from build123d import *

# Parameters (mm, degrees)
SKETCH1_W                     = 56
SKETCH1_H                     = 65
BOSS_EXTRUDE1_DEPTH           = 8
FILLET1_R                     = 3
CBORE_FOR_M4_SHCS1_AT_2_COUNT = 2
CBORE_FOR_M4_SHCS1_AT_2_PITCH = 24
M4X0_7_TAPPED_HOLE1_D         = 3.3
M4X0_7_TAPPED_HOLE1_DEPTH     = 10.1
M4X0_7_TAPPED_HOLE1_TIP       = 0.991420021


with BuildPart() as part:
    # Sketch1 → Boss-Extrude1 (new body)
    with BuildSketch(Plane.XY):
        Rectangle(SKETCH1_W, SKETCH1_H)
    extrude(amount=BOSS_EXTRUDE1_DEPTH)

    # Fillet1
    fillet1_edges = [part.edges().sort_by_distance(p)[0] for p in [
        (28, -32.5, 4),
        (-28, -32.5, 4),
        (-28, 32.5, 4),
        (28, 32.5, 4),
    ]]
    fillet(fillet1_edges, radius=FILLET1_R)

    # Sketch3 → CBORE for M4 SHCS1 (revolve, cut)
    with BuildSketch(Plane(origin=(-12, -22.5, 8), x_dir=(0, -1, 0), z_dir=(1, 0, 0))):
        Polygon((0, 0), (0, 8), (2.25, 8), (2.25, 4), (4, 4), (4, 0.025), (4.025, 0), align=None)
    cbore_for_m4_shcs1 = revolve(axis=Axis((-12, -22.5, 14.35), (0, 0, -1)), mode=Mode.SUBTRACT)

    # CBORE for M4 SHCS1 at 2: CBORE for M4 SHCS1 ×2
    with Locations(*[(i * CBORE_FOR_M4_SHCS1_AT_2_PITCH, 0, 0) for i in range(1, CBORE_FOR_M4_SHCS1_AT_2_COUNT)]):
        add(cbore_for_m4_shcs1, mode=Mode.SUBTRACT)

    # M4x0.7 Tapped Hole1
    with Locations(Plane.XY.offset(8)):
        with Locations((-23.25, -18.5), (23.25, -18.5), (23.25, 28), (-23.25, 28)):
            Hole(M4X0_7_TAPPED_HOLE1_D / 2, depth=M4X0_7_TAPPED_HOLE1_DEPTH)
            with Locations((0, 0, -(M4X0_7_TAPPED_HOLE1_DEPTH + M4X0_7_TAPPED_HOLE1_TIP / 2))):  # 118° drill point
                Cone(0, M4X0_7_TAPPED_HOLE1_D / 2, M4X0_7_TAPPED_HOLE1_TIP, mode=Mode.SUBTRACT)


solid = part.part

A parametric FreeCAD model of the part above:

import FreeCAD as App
import Part
import Sketcher

V = App.Vector
Q = App.Units.Quantity


def edges_at(feature, points):
    """Names of the edges that pass closest to the given points."""
    edges = feature.Shape.Edges
    near = lambda p: min(range(len(edges)), key=lambda i: edges[i].distToShape(Part.Vertex(*p))[0])
    return sorted({f"Edge{near(p) + 1}" for p in points})

doc = App.newDocument("Part")
params = doc.addObject("Spreadsheet::Sheet", "Params")
for row, (alias, value) in enumerate([
    ("sketch1_width", "56 mm"),
    ("sketch1_height", "65 mm"),
    ("pad1_length", "8 mm"),
    ("fillet_radius", "3 mm"),
    ("sketch2_height", "8 mm"),
    ("sketch2_height2", "4 mm"),
    ("sketch2_width", "1.75 mm"),
    ("groove_angle", "360 deg"),
    ("linearpattern_pitch", "24 mm"),
    ("sketch3_diameter", "3.3 mm"),
    ("hole_diameter", "3.3 mm"),
    ("hole_depth", "10.1 mm"),
], start=1):
    params.set(f"A{row}", alias)
    params.set(f"B{row}", "=" + value)
    params.setAlias(f"B{row}", alias)

body = doc.addObject("PartDesign::Body", "Body")

sketch1 = body.newObject("Sketcher::SketchObject", "Sketch")
sketch1.AttachmentSupport = (doc.getObject("XY_Plane"), [""])
sketch1.MapMode = "FlatFace"
sketch1.addGeometry([
    Part.LineSegment(V(-28, 32.5, 0), V(-28, -32.5, 0)),
    Part.LineSegment(V(-28, -32.5, 0), V(28, -32.5, 0)),
    Part.LineSegment(V(28, -32.5, 0), V(28, 32.5, 0)),
    Part.LineSegment(V(28, 32.5, 0), V(-28, 32.5, 0)),
], False)
sketch1.addConstraint([
    Sketcher.Constraint("Coincident", 0, 2, 1, 1),
    Sketcher.Constraint("Coincident", 1, 2, 2, 1),
    Sketcher.Constraint("Coincident", 2, 2, 3, 1),
    Sketcher.Constraint("Coincident", 3, 2, 0, 1),
    Sketcher.Constraint("Vertical", 0),
    Sketcher.Constraint("Horizontal", 1),
    Sketcher.Constraint("Vertical", 2),
    Sketcher.Constraint("Horizontal", 3),
    Sketcher.Constraint("Symmetric", 0, 2, 2, 2, -1, 1),
    Sketcher.Constraint("DistanceX", 1, 1, 1, 2, Q("56 mm")),
    Sketcher.Constraint("DistanceY", 0, 2, 0, 1, Q("65 mm")),
])
sketch1.setExpression("Constraints[9]", "Params.sketch1_width")
sketch1.setExpression("Constraints[10]", "Params.sketch1_height")
pad1 = body.newObject("PartDesign::Pad", "Pad")
pad1.Profile = sketch1
pad1.setExpression("Length", "Params.pad1_length")
doc.recompute()

fillet = body.newObject("PartDesign::Fillet", "Fillet")
fillet.Base = (pad1, edges_at(pad1, [
    (28, -32.5, 4),
    (-28, -32.5, 4),
    (-28, 32.5, 4),
    (28, 32.5, 4),
]))
fillet.setExpression("Radius", "Params.fillet_radius")

sketch2 = body.newObject("Sketcher::SketchObject", "Sketch001")
sketch2.AttachmentSupport = (doc.getObject("YZ_Plane"), [""])
sketch2.MapMode = "FlatFace"
sketch2.AttachmentOffset = App.Placement(V(0, 0, -12), App.Rotation())
sketch2.addGeometry([
    Part.LineSegment(V(-22.5, 0, 0), V(-22.5, 8, 0)),
    Part.LineSegment(V(-22.5, 8, 0), V(-26.525, 8, 0)),
    Part.LineSegment(V(-26.525, 8, 0), V(-26.5, 7.975, 0)),
    Part.LineSegment(V(-26.5, 7.975, 0), V(-26.5, 4, 0)),
    Part.LineSegment(V(-26.5, 4, 0), V(-24.75, 4, 0)),
    Part.LineSegment(V(-24.75, 4, 0), V(-24.75, 0, 0)),
    Part.LineSegment(V(-24.75, 0, 0), V(-22.5, 0, 0)),
], False)
sketch2.addGeometry(Part.LineSegment(V(-22.5, 8, 0), V(-22.5, 0, 0)), True)
sketch2.addConstraint([
    Sketcher.Constraint("Coincident", 0, 2, 1, 1),
    Sketcher.Constraint("Coincident", 1, 2, 2, 1),
    Sketcher.Constraint("Coincident", 2, 2, 3, 1),
    Sketcher.Constraint("Coincident", 3, 2, 4, 1),
    Sketcher.Constraint("Coincident", 4, 2, 5, 1),
    Sketcher.Constraint("Coincident", 5, 2, 6, 1),
    Sketcher.Constraint("Coincident", 6, 2, 0, 1),
    Sketcher.Constraint("Vertical", 0),
    Sketcher.Constraint("Horizontal", 1),
    Sketcher.Constraint("Vertical", 3),
    Sketcher.Constraint("Horizontal", 4),
    Sketcher.Constraint("Vertical", 5),
    Sketcher.Constraint("Horizontal", 6),
    Sketcher.Constraint("Vertical", 7),
    Sketcher.Constraint("Coincident", 7, 1, 0, 2),
    Sketcher.Constraint("PointOnObject", 5, 2, -1),
    Sketcher.Constraint("PointOnObject", 7, 2, -1),
    Sketcher.Constraint("DistanceY", 0, 1, 0, 2, Q("8 mm")),
    Sketcher.Constraint("DistanceY", 5, 2, 5, 1, Q("4 mm")),
    Sketcher.Constraint("Angle", 2, Q("-45 deg")),
    Sketcher.Constraint("DistanceX", 2, 2, 0, 2, Q("4 mm")),
    Sketcher.Constraint("DistanceX", 4, 1, 4, 2, Q("1.75 mm")),
    Sketcher.Constraint("DistanceX", 0, 2, -1, 1, Q("22.5 mm")),
    Sketcher.Constraint("DistanceX", 1, 2, 1, 1, Q("4.025 mm")),
])
sketch2.setExpression("Constraints[17]", "Params.sketch2_height")
sketch2.setExpression("Constraints[18]", "Params.sketch2_height2")
sketch2.setExpression("Constraints[21]", "Params.sketch2_width")
groove = body.newObject("PartDesign::Groove", "Groove")
groove.Profile = sketch2
groove.ReferenceAxis = (sketch2, ["Axis0"])
groove.setExpression("Angle", "Params.groove_angle")
doc.recompute()

linearpattern = body.newObject("PartDesign::LinearPattern", "LinearPattern")
linearpattern.Originals = [groove]
linearpattern.Direction = (doc.getObject("X_Axis"), [""])
linearpattern.Mode = "offset"
linearpattern.setExpression("Offset", "Params.linearpattern_pitch")
linearpattern.Occurrences = 2
body.Tip = linearpattern

sketch3 = body.newObject("Sketcher::SketchObject", "Sketch002")
sketch3.AttachmentSupport = (doc.getObject("XY_Plane"), [""])
sketch3.MapMode = "FlatFace"
sketch3.AttachmentOffset = App.Placement(V(0, 0, 8), App.Rotation())
sketch3.addGeometry([
    Part.Circle(V(-23.25, -18.5, 0), V(0, 0, 1), 1.65),
    Part.Circle(V(23.25, -18.5, 0), V(0, 0, 1), 1.65),
    Part.Circle(V(23.25, 28, 0), V(0, 0, 1), 1.65),
    Part.Circle(V(-23.25, 28, 0), V(0, 0, 1), 1.65),
], False)
sketch3.addConstraint([
    Sketcher.Constraint("Equal", 0, 1),
    Sketcher.Constraint("Equal", 1, 2),
    Sketcher.Constraint("Equal", 2, 3),
    Sketcher.Constraint("Symmetric", 0, 3, 1, 3, -2),
    Sketcher.Constraint("Symmetric", 2, 3, 3, 3, -2),
    Sketcher.Constraint("Vertical", 1, 3, 2, 3),
    Sketcher.Constraint("Diameter", 0, Q("3.3 mm")),
    Sketcher.Constraint("DistanceY", -1, 1, 2, 3, Q("28 mm")),
    Sketcher.Constraint("DistanceY", 0, 3, -1, 1, Q("18.5 mm")),
    Sketcher.Constraint("DistanceX", 0, 3, 1, 3, Q("46.5 mm")),
])
sketch3.setExpression("Constraints[6]", "Params.sketch3_diameter")
doc.recompute()
hole = body.newObject("PartDesign::Hole", "Hole")
hole.Profile = sketch3
hole.ThreadType = "None"
hole.setExpression("Diameter", "Params.hole_diameter")
hole.DepthType = "Dimension"
hole.setExpression("Depth", "Params.hole_depth")
hole.DrillPoint = "Angled"
hole.DrillPointAngle = 118

doc.recompute()
